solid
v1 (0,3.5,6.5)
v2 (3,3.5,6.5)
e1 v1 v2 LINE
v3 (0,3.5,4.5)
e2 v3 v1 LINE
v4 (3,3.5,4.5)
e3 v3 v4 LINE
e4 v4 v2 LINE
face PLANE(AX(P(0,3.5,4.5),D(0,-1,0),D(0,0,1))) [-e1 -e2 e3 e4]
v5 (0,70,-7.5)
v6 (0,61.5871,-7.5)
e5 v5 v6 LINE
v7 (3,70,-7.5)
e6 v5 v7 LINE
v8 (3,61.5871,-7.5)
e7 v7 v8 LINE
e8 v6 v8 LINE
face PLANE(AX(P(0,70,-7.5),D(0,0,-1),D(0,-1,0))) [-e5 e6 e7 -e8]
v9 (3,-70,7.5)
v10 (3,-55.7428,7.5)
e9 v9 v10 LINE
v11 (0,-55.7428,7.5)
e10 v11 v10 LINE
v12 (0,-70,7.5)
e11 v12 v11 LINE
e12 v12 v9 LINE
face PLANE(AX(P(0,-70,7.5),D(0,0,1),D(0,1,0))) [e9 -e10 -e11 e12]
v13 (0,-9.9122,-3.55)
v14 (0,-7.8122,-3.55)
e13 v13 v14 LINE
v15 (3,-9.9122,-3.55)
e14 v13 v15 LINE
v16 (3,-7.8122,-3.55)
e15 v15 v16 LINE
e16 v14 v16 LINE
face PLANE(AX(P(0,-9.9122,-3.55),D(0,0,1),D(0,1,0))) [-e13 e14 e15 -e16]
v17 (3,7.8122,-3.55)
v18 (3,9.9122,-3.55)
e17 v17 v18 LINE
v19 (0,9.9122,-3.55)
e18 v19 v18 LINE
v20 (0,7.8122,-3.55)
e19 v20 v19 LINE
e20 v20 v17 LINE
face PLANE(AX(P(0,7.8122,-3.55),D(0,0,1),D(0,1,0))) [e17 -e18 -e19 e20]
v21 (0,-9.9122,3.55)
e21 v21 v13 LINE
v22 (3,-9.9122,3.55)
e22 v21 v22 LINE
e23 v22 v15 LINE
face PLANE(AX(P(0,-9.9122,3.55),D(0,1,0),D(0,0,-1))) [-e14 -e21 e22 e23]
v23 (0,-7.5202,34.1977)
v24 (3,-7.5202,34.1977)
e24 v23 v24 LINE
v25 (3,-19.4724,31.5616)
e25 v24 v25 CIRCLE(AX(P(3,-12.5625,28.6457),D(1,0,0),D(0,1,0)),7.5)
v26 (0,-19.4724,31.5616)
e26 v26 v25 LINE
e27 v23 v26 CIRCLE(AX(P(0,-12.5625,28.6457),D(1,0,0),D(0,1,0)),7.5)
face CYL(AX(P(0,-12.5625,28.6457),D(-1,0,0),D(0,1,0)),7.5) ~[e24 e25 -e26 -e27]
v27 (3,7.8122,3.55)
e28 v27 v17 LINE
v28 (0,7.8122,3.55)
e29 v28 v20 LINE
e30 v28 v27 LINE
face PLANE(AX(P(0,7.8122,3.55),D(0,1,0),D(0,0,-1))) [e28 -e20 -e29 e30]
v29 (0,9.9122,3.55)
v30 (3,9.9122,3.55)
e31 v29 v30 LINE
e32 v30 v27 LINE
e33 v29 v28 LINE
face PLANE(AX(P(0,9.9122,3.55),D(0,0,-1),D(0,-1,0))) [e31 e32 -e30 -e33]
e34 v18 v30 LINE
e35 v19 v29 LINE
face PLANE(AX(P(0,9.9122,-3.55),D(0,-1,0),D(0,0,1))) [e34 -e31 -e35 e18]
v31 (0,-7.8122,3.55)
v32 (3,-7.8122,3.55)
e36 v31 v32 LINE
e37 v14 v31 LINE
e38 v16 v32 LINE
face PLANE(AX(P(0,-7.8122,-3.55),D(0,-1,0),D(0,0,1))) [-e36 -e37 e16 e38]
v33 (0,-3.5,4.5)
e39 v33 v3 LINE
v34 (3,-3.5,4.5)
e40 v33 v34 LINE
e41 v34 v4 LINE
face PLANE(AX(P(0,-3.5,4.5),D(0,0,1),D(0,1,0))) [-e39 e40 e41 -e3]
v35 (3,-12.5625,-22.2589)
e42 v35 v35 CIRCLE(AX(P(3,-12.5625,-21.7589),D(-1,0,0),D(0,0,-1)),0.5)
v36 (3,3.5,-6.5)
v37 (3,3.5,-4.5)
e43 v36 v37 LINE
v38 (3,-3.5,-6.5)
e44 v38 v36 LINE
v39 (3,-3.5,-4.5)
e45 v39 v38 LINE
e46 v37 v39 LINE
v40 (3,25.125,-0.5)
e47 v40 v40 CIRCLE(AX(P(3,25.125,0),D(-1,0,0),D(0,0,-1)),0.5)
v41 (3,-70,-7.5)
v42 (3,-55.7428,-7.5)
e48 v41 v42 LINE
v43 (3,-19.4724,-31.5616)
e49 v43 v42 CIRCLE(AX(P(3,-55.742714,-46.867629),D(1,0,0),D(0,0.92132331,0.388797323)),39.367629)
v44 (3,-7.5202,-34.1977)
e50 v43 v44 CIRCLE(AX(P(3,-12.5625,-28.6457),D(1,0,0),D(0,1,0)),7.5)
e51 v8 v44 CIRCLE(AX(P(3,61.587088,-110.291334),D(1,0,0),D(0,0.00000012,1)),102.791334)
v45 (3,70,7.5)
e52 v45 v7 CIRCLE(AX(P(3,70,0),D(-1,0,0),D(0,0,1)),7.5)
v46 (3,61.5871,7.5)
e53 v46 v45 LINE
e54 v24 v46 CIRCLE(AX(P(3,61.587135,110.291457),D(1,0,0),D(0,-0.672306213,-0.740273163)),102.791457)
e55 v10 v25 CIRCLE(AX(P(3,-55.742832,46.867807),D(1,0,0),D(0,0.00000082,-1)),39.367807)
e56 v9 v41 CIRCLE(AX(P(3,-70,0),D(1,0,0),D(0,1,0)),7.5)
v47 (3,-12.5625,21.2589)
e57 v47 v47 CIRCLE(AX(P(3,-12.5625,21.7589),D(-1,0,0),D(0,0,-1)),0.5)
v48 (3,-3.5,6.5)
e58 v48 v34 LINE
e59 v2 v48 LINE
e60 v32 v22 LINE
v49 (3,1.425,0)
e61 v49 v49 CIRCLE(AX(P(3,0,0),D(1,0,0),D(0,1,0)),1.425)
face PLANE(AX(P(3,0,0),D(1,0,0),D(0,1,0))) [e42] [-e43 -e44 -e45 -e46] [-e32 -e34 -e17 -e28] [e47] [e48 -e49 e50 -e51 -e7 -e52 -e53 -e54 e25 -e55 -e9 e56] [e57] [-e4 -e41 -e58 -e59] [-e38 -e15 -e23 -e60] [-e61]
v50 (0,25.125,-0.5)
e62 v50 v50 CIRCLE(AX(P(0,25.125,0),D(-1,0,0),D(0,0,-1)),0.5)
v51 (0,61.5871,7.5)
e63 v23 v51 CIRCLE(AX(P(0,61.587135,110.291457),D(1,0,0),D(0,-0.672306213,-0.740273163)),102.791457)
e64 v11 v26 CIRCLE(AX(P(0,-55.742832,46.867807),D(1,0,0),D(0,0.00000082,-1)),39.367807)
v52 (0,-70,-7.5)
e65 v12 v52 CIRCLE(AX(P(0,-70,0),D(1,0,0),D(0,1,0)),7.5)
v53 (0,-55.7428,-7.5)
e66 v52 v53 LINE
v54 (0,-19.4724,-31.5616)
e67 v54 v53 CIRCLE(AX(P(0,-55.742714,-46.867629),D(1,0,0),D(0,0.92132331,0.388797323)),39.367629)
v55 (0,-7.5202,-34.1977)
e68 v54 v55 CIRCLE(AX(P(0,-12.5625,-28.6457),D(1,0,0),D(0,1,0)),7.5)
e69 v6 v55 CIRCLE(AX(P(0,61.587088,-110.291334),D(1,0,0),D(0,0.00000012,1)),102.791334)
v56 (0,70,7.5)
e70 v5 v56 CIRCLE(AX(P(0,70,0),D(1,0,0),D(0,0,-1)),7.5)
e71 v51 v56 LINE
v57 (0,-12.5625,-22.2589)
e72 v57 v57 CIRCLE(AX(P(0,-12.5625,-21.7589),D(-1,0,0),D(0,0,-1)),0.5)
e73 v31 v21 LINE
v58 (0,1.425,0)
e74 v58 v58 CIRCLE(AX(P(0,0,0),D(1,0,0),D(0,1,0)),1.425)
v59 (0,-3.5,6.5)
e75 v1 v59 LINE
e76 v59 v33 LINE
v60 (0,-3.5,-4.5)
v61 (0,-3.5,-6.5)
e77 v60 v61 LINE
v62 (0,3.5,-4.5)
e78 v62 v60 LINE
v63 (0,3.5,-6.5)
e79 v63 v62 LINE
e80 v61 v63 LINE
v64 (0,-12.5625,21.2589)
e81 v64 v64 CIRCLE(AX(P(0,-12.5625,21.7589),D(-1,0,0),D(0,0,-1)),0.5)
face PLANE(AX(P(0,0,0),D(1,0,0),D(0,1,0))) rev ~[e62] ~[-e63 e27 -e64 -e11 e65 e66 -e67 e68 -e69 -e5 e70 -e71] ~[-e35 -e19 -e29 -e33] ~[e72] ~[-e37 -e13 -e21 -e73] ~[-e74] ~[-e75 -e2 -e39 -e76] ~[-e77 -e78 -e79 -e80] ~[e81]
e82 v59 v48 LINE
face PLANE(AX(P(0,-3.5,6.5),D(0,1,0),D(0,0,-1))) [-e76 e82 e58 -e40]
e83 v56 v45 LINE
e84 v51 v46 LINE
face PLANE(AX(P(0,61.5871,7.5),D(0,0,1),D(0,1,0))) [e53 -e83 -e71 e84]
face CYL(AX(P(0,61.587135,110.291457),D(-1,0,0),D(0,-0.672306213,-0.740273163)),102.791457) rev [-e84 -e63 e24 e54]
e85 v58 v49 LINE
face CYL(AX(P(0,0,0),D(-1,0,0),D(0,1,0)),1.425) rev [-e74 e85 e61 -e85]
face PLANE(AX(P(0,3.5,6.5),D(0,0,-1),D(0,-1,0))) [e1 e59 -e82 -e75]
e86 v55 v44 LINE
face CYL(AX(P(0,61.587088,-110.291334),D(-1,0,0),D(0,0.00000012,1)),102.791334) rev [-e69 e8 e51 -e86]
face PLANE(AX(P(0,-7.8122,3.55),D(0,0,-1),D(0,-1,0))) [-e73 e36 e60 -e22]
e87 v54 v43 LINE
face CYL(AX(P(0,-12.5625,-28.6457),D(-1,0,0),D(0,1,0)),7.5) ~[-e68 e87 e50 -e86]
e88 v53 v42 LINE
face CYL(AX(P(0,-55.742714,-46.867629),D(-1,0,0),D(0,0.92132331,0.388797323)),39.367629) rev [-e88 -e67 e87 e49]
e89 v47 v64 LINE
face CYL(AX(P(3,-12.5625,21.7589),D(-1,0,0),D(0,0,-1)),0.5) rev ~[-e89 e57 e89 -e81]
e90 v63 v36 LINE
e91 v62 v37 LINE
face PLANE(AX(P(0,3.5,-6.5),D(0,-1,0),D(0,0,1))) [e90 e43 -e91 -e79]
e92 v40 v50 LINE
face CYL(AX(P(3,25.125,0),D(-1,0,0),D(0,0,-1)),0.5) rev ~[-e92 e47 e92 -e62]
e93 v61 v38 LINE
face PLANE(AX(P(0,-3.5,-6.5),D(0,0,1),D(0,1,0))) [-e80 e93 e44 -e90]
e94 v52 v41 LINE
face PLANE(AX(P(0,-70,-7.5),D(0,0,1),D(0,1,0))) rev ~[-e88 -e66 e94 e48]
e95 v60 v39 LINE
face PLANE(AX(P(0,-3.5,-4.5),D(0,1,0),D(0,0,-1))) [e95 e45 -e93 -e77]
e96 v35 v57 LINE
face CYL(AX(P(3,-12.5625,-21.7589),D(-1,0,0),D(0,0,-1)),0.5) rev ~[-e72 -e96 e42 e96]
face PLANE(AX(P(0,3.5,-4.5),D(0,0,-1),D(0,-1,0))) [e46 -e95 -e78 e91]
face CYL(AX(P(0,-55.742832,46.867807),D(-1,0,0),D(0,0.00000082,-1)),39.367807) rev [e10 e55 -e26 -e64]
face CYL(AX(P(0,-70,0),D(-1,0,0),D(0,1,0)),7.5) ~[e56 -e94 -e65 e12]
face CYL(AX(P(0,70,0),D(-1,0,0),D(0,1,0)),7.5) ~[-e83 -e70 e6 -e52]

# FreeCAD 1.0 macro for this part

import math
import FreeCAD as App
import Part
import Sketcher

V = App.Vector
Q = App.Units.Quantity


def add_polygon(sketch, points):
    """Adds a closed chain of lines whose ends are joined by coincident constraints."""
    first, n = sketch.GeometryCount, len(points)
    for a, b in zip(points, points[1:] + points[:1]):
        sketch.addGeometry(Part.LineSegment(App.Vector(*a, 0), App.Vector(*b, 0)), False)
    for i in range(n):
        sketch.addConstraint(Sketcher.Constraint("Coincident", first + i, 2, first + (i + 1) % n, 1))

doc = App.newDocument("Part")
body = doc.addObject("PartDesign::Body", "Body")

# Sketch on YZ plane
sketch1 = body.newObject("Sketcher::SketchObject", "Sketch")
sketch1.AttachmentSupport = (doc.getObject("YZ_Plane"), [""])
sketch1.MapMode = "FlatFace"
sketch1.addGeometry(Part.ArcOfCircle(Part.Circle(V(70, 0, 0), V(0, 0, 1), 7.5), math.radians(-90), math.radians(90)), False)  # 0
sketch1.addGeometry(Part.LineSegment(V(70, 7.5, 0), V(61.6, 7.5, 0)), False)  # 1
sketch1.addGeometry(Part.ArcOfCircle(Part.Circle(V(61.6, 110.3, 0), V(0, 0, 1), 102.8), math.radians(-132), math.radians(-90)), False)  # 2
sketch1.addGeometry(Part.ArcOfCircle(Part.Circle(V(-12.6, 28.6, 0), V(0, 0, 1), 7.5), math.radians(48), math.radians(157)), False)  # 3
sketch1.addGeometry(Part.ArcOfCircle(Part.Circle(V(-55.7, 46.9, 0), V(0, 0, 1), 39.4), math.radians(-90), math.radians(-23)), False)  # 4
sketch1.addGeometry(Part.LineSegment(V(-55.7, 7.5, 0), V(-70, 7.5, 0)), False)  # 5
sketch1.addGeometry(Part.ArcOfCircle(Part.Circle(V(-70, 0, 0), V(0, 0, 1), 7.5), math.radians(90), math.radians(270)), False)  # 6
sketch1.addGeometry(Part.LineSegment(V(-70, -7.5, 0), V(-55.7, -7.5, 0)), False)  # 7
sketch1.addGeometry(Part.ArcOfCircle(Part.Circle(V(-55.7, -46.9, 0), V(0, 0, 1), 39.4), math.radians(23), math.radians(90)), False)  # 8
sketch1.addGeometry(Part.ArcOfCircle(Part.Circle(V(-12.6, -28.6, 0), V(0, 0, 1), 7.5), math.radians(-157), math.radians(-48)), False)  # 9
sketch1.addGeometry(Part.ArcOfCircle(Part.Circle(V(61.6, -110.3, 0), V(0, 0, 1), 102.8), math.radians(90), math.radians(132)), False)  # 10
sketch1.addGeometry(Part.LineSegment(V(61.6, -7.5, 0), V(70, -7.5, 0)), False)  # 11
add_polygon(sketch1, [(3.5, 6.5), (3.5, 4.5), (-3.5, 4.5), (-3.5, 6.5)])  # lines 12-15
add_polygon(sketch1, [(3.5, -6.5), (-3.5, -6.5), (-3.5, -4.5), (3.5, -4.5)])  # lines 16-19
add_polygon(sketch1, [(-9.9, 3.5), (-7.8, 3.5), (-7.8, -3.5), (-9.9, -3.5)])  # lines 20-23
sketch1.addGeometry(Part.Circle(V(0, 0, 0), V(0, 0, 1), 1.4), False)  # 24
add_polygon(sketch1, [(7.8, 3.5), (9.9, 3.5), (9.9, -3.5), (7.8, -3.5)])  # lines 25-28
sketch1.addConstraint(Sketcher.Constraint("Tangent", 0, 2, 1, 1))
sketch1.addConstraint(Sketcher.Constraint("Tangent", 1, 2, 2, 2))
sketch1.addConstraint(Sketcher.Constraint("Tangent", 2, 1, 3, 1))
sketch1.addConstraint(Sketcher.Constraint("Tangent", 3, 2, 4, 2))
sketch1.addConstraint(Sketcher.Constraint("Tangent", 4, 1, 5, 1))
sketch1.addConstraint(Sketcher.Constraint("Tangent", 5, 2, 6, 1))
sketch1.addConstraint(Sketcher.Constraint("Tangent", 6, 2, 7, 1))
sketch1.addConstraint(Sketcher.Constraint("Tangent", 7, 2, 8, 2))
sketch1.addConstraint(Sketcher.Constraint("Tangent", 8, 1, 9, 1))
sketch1.addConstraint(Sketcher.Constraint("Tangent", 9, 2, 10, 2))
sketch1.addConstraint(Sketcher.Constraint("Tangent", 10, 1, 11, 1))
sketch1.addConstraint(Sketcher.Constraint("Tangent", 11, 2, 0, 1))
sketch1.addConstraint(Sketcher.Constraint("Horizontal", 1))
sketch1.addConstraint(Sketcher.Constraint("Horizontal", 5))
sketch1.addConstraint(Sketcher.Constraint("Horizontal", 7))
sketch1.addConstraint(Sketcher.Constraint("Horizontal", 11))
sketch1.addConstraint(Sketcher.Constraint("Vertical", 12))
sketch1.addConstraint(Sketcher.Constraint("Horizontal", 13))
sketch1.addConstraint(Sketcher.Constraint("Vertical", 14))
sketch1.addConstraint(Sketcher.Constraint("Horizontal", 15))
sketch1.addConstraint(Sketcher.Constraint("Horizontal", 16))
sketch1.addConstraint(Sketcher.Constraint("Vertical", 17))
sketch1.addConstraint(Sketcher.Constraint("Horizontal", 18))
sketch1.addConstraint(Sketcher.Constraint("Vertical", 19))
sketch1.addConstraint(Sketcher.Constraint("Horizontal", 20))
sketch1.addConstraint(Sketcher.Constraint("Vertical", 21))
sketch1.addConstraint(Sketcher.Constraint("Horizontal", 22))
sketch1.addConstraint(Sketcher.Constraint("Vertical", 23))
sketch1.addConstraint(Sketcher.Constraint("Horizontal", 25))
sketch1.addConstraint(Sketcher.Constraint("Vertical", 26))
sketch1.addConstraint(Sketcher.Constraint("Horizontal", 27))
sketch1.addConstraint(Sketcher.Constraint("Vertical", 28))
sketch1.addConstraint(Sketcher.Constraint("Coincident", 24, 3, -1, 1))
sketch1.addConstraint(Sketcher.Constraint("Equal", 0, 3))
sketch1.addConstraint(Sketcher.Constraint("Equal", 3, 6))
sketch1.addConstraint(Sketcher.Constraint("Equal", 4, 8))
sketch1.addConstraint(Sketcher.Constraint("Equal", 6, 9))
sketch1.addConstraint(Sketcher.Constraint("Equal", 2, 10))
sketch1.addConstraint(Sketcher.Constraint("Symmetric", 0, 3, 6, 3, -1, 1))
sketch1.addConstraint(Sketcher.Constraint("Symmetric", 15, 2, 16, 2, -1, 1))
sketch1.addConstraint(Sketcher.Constraint("Symmetric", 13, 2, 18, 2, -1, 1))
sketch1.addConstraint(Sketcher.Constraint("Symmetric", 22, 2, 25, 2, -1, 1))
sketch1.addConstraint(Sketcher.Constraint("Symmetric", 20, 2, 27, 2, -1, 1))
sketch1.addConstraint(Sketcher.Constraint("Symmetric", 4, 3, 8, 3, -1))
sketch1.addConstraint(Sketcher.Constraint("Horizontal", 23, 2, 25, 2))
sketch1.addConstraint(Sketcher.Constraint("Vertical", 3, 3, 9, 3))
sketch1.addConstraint(Sketcher.Constraint("Vertical", 14, 2, 16, 2))
sketch1.addConstraint(Sketcher.Constraint("Radius", 0, Q("7.5 mm")))
sketch1.addConstraint(Sketcher.Constraint("Diameter", 24, Q("2.85 mm")))
sketch1.addConstraint(Sketcher.Constraint("DistanceX", 13, 2, 13, 1, Q("7 mm")))
sketch1.addConstraint(Sketcher.Constraint("DistanceY", 12, 2, 12, 1, Q("2 mm")))
sketch1.addConstraint(Sketcher.Constraint("DistanceX", 20, 1, 20, 2, Q("2.1 mm")))
sketch1.addConstraint(Sketcher.Constraint("DistanceY", 21, 2, 21, 1, Q("7.1 mm")))
sketch1.addConstraint(Sketcher.Constraint("DistanceX", 6, 3, 0, 3, Q("140 mm")))
sketch1.addConstraint(Sketcher.Constraint("DistanceY", -1, 1, 12, 2, Q("4.5 mm")))
sketch1.addConstraint(Sketcher.Constraint("DistanceX", 20, 2, -1, 1, Q("7.8122 mm")))
sketch1.addConstraint(Sketcher.Constraint("Radius", 2, Q("102.7914 mm")))
sketch1.addConstraint(Sketcher.Constraint("Radius", 4, Q("39.3677 mm")))
sketch1.addConstraint(Sketcher.Constraint("DistanceX", 1, 2, 1, 1, Q("8.413 mm")))
sketch1.addConstraint(Sketcher.Constraint("DistanceX", 4, 3, 2, 3, Q("117.33 mm")))
pad1 = body.newObject("PartDesign::Pad", "Pad")
pad1.Profile = sketch1
pad1.Length = 3

# Sketch on YZ plane
sketch2 = body.newObject("Sketcher::SketchObject", "Sketch001")
sketch2.AttachmentSupport = (doc.getObject("YZ_Plane"), [""])
sketch2.MapMode = "FlatFace"
sketch2.AttachmentOffset = App.Placement(V(0, 0, 3), App.Rotation())
sketch2.addGeometry(Part.Circle(V(25.1, 0, 0), V(0, 0, 1), 0.5), False)
sketch2.addGeometry(Part.Circle(V(-12.6, 21.8, 0), V(0, 0, 1), 0.5), False)
sketch2.addGeometry(Part.Circle(V(-12.6, -21.8, 0), V(0, 0, 1), 0.5), False)
sketch2.addConstraint(Sketcher.Constraint("Equal", 0, 1))
sketch2.addConstraint(Sketcher.Constraint("Equal", 1, 2))
sketch2.addConstraint(Sketcher.Constraint("Symmetric", 1, 3, 2, 3, -1))
sketch2.addConstraint(Sketcher.Constraint("PointOnObject", 0, 3, -1))
sketch2.addConstraint(Sketcher.Constraint("Diameter", 0, Q("1 mm")))
sketch2.addConstraint(Sketcher.Constraint("DistanceX", -1, 1, 0, 3, Q("25.125 mm")))
sketch2.addConstraint(Sketcher.Constraint("DistanceY", -1, 1, 1, 3, Q("21.759 mm")))
sketch2.addConstraint(Sketcher.Constraint("DistanceX", 1, 3, -1, 1, Q("12.5625 mm")))
doc.recompute()
hole = body.newObject("PartDesign::Hole", "Hole")
hole.Profile = sketch2
hole.ThreadType = "None"
hole.Diameter = 1
hole.DepthType = "ThroughAll"

doc.recompute()
